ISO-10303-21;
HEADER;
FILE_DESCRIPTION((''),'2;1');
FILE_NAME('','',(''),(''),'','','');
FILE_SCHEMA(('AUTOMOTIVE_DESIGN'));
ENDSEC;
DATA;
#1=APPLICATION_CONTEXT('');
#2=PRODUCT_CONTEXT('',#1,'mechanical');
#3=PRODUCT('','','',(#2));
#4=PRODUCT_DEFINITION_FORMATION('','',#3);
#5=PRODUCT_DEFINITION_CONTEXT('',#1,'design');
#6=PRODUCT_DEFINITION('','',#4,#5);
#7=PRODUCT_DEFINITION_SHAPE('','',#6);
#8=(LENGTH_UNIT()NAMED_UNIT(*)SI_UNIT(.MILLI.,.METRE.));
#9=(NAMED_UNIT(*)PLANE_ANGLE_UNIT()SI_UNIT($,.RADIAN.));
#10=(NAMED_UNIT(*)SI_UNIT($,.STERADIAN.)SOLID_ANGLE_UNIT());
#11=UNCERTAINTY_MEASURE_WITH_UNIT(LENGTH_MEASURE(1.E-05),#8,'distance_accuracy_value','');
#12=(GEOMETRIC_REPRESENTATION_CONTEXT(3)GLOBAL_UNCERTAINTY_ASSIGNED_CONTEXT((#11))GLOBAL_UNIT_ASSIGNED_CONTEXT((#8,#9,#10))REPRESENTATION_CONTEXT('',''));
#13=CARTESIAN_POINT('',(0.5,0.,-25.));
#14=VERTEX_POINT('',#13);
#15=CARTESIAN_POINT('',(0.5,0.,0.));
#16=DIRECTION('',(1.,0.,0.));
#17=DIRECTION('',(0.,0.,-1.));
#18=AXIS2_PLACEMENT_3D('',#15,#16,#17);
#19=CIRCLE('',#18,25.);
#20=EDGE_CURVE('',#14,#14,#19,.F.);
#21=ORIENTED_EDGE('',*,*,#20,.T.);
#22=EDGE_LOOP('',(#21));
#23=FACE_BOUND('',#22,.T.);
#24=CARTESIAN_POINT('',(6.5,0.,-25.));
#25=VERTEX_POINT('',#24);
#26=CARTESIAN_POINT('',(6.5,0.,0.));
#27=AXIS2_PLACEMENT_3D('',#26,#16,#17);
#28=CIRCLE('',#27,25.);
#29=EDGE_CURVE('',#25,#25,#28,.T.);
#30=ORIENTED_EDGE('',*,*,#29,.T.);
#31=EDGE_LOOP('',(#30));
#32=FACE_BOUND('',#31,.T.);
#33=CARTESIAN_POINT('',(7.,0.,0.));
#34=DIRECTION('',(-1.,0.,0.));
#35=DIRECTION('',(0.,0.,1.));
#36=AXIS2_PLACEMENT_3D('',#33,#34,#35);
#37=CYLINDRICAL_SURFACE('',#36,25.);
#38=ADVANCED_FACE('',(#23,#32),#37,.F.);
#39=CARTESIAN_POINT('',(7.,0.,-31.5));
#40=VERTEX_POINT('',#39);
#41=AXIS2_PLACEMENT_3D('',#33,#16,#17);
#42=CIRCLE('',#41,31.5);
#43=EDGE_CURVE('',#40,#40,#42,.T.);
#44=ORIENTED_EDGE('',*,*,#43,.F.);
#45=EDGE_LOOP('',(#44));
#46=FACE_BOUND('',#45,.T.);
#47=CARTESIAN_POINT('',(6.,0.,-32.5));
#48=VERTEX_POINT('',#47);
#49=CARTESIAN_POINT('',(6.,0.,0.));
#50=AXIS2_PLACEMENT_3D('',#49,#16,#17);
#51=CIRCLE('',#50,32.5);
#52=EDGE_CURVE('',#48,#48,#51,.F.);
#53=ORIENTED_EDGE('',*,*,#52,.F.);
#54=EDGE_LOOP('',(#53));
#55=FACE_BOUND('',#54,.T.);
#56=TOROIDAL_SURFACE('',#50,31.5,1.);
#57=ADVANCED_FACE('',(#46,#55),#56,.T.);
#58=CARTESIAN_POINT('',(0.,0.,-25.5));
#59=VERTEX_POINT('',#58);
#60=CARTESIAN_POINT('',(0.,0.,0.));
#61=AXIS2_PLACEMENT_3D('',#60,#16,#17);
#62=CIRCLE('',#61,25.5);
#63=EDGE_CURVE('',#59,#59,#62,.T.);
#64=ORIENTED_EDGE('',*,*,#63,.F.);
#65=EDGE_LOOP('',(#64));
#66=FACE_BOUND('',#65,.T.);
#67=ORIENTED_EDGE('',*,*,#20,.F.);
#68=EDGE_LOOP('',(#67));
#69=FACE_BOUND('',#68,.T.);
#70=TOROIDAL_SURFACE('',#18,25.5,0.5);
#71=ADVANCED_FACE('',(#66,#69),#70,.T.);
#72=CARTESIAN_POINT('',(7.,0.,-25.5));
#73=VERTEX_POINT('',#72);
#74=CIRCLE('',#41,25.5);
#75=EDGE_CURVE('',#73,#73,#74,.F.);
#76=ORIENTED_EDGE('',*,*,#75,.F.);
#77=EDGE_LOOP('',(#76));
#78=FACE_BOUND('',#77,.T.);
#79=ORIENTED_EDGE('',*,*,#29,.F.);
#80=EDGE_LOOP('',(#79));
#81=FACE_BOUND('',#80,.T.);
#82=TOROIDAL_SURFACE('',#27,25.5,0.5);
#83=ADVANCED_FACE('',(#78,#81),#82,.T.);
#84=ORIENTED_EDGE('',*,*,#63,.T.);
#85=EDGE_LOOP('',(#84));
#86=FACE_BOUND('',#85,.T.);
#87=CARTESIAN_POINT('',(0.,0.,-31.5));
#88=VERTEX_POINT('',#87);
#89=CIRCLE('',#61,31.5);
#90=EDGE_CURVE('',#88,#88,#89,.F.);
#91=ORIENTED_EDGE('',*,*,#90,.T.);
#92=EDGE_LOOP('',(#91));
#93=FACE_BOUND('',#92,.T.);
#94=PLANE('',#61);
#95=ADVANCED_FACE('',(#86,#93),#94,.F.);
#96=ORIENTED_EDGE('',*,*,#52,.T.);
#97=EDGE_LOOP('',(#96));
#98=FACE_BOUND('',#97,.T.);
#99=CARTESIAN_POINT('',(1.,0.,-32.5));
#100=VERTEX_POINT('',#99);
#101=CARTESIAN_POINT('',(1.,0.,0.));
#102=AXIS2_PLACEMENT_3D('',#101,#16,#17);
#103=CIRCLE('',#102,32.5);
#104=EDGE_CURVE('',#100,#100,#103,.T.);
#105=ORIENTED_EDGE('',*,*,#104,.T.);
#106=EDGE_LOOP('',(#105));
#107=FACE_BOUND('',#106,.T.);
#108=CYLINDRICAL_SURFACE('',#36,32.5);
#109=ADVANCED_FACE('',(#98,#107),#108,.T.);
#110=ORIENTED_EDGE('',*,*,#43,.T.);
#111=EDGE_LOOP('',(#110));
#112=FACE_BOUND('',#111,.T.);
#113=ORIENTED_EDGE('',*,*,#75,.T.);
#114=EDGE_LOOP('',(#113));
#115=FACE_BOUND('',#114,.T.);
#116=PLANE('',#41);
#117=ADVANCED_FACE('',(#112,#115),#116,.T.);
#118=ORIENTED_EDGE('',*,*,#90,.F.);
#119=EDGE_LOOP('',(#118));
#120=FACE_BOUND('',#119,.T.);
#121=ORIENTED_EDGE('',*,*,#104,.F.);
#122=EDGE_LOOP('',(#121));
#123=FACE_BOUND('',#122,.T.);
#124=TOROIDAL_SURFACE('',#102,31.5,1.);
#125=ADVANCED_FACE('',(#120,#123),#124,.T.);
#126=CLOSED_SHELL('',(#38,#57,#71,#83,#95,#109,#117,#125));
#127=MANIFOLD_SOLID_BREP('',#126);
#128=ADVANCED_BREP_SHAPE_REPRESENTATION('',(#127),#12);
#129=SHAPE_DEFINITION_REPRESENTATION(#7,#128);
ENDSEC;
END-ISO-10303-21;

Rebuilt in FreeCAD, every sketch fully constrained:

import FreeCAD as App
import Part
import Sketcher


def edges_at(feature, points):
    """Names of the edges that pass closest to the given points."""
    edges = feature.Shape.Edges
    near = lambda p: min(range(len(edges)), key=lambda i: edges[i].distToShape(Part.Vertex(*p))[0])
    return sorted({f"Edge{near(p) + 1}" for p in points})

doc = App.newDocument("Part")
body = doc.addObject("PartDesign::Body", "Body")

sketch1 = doc.addObject("Sketcher::SketchObject", "Sketch")
body.addObject(sketch1)
sketch1.AttachmentSupport = (doc.YZ_Plane, [""])
sketch1.MapMode = "FlatFace"
sketch1.addGeometry(Part.Circle(App.Vector(0, 0, 0), App.Vector(0, 0, 1), 32), False)
sketch1.addGeometry(Part.Circle(App.Vector(0, 0, 0), App.Vector(0, 0, 1), 25), False)
sketch1.addConstraint(Sketcher.Constraint("Coincident", 0, 3, -1, 1))
sketch1.addConstraint(Sketcher.Constraint("Coincident", 1, 3, -1, 1))
sketch1.addConstraint(Sketcher.Constraint("Diameter", 0, 65.0))
sketch1.addConstraint(Sketcher.Constraint("Diameter", 1, 50.0))
pad1 = doc.addObject("PartDesign::Pad", "Pad")
body.addObject(pad1)
pad1.Profile = sketch1
pad1.Length = 7
doc.recompute()

fillet = doc.addObject("PartDesign::Fillet", "Fillet")
body.addObject(fillet)
fillet.Base = (pad1, edges_at(pad1, [(0, 0, 32.5), (7, 0, 32.5)]))
fillet.Radius = 1
doc.recompute()

fillet2 = doc.addObject("PartDesign::Fillet", "Fillet001")
body.addObject(fillet2)
fillet2.Base = (fillet, edges_at(fillet, [(0, 0, 25), (7, 0, 25)]))
fillet2.Radius = 0.5

doc.recompute()
